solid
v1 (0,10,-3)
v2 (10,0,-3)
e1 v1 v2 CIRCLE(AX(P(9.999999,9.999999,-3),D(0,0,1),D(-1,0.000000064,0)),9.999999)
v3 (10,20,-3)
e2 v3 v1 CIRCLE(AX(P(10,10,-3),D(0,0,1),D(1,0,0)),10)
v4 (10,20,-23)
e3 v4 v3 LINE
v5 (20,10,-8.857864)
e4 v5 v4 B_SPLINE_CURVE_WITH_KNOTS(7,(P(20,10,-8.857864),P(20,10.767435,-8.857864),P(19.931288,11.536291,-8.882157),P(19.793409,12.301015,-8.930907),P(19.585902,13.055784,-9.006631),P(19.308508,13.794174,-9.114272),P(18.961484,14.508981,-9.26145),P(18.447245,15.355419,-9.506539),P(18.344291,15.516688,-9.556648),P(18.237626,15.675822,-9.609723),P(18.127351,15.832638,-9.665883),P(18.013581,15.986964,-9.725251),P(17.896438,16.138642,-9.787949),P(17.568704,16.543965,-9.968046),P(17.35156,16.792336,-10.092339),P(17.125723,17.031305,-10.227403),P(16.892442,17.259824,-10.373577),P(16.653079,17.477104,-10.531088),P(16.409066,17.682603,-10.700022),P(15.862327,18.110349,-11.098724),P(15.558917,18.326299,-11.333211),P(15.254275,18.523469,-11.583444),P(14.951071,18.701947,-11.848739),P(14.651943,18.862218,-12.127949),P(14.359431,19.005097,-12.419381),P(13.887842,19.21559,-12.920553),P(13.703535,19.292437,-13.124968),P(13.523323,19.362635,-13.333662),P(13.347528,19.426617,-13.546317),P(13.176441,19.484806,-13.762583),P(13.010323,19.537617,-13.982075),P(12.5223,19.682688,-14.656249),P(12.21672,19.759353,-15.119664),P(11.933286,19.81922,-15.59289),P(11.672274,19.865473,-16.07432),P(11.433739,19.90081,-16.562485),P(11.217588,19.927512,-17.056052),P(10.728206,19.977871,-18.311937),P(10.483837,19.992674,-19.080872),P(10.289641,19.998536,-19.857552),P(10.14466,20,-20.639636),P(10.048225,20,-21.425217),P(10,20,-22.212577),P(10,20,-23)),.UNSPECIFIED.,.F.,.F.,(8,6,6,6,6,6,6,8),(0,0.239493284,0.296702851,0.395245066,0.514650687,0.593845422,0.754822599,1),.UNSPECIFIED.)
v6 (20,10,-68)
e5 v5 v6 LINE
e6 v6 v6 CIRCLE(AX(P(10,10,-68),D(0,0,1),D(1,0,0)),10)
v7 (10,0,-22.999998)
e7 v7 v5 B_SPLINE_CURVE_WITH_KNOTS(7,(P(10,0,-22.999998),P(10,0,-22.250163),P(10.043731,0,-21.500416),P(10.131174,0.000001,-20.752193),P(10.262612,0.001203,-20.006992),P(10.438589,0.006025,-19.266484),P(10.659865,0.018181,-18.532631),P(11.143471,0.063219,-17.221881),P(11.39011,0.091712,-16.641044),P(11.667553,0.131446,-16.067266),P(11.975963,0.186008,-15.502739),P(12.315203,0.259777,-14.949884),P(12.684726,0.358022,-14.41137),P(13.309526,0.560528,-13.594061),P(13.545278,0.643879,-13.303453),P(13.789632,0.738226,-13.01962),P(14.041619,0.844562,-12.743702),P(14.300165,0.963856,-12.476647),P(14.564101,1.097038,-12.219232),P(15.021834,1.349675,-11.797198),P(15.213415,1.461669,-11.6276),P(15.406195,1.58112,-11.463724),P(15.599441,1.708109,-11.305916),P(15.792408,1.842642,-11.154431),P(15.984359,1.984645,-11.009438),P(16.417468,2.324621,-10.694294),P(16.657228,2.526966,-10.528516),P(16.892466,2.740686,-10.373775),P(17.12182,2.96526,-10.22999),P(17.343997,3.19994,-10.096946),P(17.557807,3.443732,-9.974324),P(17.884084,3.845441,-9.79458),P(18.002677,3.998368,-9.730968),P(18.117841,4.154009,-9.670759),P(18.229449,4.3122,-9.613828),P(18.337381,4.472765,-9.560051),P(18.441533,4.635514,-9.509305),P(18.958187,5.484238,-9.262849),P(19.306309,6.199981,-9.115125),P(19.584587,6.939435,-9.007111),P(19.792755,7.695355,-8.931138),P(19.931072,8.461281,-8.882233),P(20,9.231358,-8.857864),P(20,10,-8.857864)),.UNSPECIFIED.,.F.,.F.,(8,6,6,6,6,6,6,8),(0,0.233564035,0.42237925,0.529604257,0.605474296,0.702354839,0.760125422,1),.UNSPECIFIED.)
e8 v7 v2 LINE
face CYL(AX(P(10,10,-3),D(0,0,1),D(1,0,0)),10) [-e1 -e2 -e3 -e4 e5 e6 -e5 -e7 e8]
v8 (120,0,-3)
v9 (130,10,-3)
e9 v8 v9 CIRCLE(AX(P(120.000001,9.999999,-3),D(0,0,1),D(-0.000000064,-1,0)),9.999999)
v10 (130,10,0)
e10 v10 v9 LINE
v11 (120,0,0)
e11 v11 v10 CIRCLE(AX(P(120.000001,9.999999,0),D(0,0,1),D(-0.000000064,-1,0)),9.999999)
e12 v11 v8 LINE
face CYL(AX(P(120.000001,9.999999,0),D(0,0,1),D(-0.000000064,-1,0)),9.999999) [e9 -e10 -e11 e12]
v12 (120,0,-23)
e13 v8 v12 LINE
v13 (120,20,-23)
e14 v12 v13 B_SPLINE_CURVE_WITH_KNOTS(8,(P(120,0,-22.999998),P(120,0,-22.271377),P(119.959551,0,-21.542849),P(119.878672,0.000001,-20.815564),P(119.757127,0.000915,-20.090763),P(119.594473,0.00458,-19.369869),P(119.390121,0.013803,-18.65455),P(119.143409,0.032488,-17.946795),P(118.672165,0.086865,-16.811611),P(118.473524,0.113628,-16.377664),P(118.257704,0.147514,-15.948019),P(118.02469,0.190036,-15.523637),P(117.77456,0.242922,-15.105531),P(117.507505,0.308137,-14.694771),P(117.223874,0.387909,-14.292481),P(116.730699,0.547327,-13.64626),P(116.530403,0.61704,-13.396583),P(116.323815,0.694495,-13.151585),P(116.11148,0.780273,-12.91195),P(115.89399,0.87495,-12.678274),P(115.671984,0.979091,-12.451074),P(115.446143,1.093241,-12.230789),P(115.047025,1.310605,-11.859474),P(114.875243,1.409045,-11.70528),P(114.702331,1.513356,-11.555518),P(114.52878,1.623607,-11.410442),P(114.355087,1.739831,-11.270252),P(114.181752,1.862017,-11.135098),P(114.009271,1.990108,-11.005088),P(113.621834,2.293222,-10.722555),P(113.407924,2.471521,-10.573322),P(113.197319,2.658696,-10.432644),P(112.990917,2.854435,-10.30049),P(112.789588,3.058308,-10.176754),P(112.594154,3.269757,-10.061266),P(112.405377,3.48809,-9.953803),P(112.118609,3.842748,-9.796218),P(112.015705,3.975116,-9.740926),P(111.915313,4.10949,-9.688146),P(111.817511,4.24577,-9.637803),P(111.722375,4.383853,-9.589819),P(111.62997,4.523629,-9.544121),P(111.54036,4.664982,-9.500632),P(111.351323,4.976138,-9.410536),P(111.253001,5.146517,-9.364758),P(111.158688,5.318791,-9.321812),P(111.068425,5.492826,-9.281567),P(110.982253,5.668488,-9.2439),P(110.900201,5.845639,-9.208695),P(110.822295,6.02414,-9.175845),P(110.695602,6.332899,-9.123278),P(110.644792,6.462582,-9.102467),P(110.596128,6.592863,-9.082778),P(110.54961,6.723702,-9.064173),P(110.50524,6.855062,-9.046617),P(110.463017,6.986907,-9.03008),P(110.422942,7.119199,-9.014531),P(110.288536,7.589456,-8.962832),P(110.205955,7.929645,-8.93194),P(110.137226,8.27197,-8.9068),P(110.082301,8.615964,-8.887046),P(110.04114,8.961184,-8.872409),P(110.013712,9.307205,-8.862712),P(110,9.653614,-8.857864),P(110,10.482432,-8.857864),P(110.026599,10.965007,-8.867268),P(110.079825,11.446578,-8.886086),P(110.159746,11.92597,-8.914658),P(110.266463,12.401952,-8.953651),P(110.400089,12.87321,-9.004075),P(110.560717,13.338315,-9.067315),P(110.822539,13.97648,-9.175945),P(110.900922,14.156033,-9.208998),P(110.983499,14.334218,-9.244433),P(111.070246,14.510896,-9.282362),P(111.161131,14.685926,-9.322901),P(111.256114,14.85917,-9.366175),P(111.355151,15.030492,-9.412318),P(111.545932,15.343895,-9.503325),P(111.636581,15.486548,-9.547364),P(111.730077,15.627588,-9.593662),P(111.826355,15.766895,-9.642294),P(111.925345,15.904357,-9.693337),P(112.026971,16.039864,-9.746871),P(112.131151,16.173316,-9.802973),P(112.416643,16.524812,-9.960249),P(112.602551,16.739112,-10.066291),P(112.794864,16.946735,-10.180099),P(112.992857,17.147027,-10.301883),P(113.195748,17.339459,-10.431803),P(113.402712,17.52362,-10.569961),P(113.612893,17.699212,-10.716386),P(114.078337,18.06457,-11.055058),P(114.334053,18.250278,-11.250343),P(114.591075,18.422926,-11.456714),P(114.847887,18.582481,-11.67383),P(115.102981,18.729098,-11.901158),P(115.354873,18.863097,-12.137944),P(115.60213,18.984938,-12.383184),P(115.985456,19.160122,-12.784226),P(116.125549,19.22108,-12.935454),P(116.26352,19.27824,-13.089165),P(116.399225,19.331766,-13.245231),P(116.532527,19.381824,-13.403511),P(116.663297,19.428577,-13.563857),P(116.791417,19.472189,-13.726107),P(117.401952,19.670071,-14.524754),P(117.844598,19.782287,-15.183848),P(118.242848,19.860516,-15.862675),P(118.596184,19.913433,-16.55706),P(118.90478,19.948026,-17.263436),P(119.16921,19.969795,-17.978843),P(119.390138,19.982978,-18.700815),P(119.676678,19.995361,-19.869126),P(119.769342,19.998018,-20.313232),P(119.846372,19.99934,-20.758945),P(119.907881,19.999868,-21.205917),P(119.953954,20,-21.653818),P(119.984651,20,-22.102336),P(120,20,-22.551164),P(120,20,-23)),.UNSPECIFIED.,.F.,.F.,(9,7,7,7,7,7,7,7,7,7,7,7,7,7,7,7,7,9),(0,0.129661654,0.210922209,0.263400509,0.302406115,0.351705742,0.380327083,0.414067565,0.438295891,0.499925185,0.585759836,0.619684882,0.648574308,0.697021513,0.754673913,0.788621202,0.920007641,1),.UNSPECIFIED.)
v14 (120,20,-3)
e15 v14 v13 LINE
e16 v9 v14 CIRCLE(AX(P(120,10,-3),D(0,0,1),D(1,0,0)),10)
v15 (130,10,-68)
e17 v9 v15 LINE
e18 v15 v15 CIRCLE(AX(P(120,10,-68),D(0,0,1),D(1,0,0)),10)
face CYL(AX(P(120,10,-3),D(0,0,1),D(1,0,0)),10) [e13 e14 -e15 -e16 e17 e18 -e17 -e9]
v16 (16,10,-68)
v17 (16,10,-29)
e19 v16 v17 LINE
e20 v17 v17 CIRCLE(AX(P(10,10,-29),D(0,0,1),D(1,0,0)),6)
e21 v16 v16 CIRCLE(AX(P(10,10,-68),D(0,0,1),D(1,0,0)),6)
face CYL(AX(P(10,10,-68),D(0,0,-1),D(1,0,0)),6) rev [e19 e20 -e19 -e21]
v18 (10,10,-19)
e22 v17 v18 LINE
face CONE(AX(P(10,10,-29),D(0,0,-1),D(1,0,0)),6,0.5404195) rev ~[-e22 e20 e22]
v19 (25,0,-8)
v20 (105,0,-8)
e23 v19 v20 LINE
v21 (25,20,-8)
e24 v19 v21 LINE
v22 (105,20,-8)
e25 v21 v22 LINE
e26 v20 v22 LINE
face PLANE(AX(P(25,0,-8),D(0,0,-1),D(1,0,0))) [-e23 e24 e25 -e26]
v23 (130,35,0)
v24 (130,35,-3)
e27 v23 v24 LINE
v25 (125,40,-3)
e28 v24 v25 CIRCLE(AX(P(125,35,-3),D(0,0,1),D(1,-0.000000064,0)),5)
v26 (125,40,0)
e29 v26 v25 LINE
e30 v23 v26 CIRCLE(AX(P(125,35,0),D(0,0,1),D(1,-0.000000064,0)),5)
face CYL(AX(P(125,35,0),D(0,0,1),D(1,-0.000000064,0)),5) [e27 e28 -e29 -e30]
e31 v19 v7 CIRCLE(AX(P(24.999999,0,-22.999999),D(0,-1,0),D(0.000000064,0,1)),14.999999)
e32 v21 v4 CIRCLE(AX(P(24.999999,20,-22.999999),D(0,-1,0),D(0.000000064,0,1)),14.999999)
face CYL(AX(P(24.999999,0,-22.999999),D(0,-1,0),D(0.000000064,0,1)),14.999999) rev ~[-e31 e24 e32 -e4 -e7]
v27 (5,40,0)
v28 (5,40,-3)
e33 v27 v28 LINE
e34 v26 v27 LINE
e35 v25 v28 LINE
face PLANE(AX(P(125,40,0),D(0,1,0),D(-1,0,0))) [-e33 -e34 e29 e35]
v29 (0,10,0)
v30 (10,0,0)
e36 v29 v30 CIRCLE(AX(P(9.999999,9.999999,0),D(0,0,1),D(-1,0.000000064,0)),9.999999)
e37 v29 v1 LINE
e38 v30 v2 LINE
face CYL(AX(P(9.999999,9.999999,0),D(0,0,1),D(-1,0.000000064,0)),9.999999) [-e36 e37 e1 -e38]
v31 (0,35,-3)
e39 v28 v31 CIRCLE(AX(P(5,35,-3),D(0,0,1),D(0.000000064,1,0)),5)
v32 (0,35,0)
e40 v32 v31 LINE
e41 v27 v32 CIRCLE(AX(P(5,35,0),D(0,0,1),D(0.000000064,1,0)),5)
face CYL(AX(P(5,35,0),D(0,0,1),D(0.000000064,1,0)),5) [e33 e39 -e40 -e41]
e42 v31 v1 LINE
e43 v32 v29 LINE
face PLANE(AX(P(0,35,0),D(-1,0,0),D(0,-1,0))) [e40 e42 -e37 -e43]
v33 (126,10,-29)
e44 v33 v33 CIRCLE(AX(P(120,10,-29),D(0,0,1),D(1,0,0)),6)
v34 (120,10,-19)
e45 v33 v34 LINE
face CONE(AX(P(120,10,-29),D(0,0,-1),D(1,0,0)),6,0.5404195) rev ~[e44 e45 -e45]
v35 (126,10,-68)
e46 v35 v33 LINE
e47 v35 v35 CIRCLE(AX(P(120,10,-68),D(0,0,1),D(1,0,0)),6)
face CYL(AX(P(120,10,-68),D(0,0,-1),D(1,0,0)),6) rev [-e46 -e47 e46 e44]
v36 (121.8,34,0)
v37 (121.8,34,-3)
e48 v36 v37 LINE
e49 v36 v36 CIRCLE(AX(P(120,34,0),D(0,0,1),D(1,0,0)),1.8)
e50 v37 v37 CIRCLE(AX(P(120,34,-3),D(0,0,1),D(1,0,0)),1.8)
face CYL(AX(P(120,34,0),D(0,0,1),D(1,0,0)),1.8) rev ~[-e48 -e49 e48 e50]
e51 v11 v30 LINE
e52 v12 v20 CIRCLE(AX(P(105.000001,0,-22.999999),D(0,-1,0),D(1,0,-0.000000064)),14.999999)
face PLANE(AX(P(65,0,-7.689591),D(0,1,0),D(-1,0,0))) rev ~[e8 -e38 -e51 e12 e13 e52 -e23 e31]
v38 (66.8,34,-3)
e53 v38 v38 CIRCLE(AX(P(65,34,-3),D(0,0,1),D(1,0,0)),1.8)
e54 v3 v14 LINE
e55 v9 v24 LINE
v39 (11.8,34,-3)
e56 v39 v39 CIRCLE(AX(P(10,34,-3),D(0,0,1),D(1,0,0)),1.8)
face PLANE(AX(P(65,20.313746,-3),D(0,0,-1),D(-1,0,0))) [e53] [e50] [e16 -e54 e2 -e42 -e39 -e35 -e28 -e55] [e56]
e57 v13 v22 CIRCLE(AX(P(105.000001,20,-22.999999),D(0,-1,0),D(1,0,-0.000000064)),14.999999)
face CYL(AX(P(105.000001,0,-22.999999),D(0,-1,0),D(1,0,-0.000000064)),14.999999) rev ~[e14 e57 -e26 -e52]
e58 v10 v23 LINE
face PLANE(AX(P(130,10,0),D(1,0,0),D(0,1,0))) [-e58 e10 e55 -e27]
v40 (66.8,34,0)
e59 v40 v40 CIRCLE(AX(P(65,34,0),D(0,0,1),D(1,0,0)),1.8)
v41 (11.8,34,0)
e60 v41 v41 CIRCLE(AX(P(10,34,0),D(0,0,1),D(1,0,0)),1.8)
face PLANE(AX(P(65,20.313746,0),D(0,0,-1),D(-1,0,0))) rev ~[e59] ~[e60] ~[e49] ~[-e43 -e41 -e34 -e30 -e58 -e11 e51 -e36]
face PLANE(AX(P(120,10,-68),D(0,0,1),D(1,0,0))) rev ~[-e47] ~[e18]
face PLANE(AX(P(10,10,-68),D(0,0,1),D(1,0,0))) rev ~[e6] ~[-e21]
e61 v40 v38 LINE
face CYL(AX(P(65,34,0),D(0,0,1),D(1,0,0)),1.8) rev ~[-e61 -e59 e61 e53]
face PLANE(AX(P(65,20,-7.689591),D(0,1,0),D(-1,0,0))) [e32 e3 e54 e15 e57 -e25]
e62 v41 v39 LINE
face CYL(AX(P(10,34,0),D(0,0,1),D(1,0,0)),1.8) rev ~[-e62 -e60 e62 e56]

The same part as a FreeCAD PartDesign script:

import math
import FreeCAD as App
import Part
import Sketcher

V = App.Vector

doc = App.newDocument("Part")
body = doc.addObject("PartDesign::Body", "Body")

sketch1 = doc.addObject("Sketcher::SketchObject", "Sketch")
body.addObject(sketch1)
sketch1.AttachmentSupport = (doc.XY_Plane, [""])
sketch1.MapMode = "FlatFace"
sketch1.addGeometry([
    Part.LineSegment(V(10, 0, 0), V(120, 0, 0)),
    Part.ArcOfCircle(Part.Circle(V(120, 10, 0), V(0, 0, 1), 10), math.radians(-90), math.radians(0)),
    Part.LineSegment(V(130, 10, 0), V(130, 35, 0)),
    Part.ArcOfCircle(Part.Circle(V(125, 35, 0), V(0, 0, 1), 5), math.radians(0), math.radians(90)),
    Part.LineSegment(V(125, 40, 0), V(5, 40, 0)),
    Part.ArcOfCircle(Part.Circle(V(5, 35, 0), V(0, 0, 1), 5), math.radians(90), math.radians(180)),
    Part.LineSegment(V(0, 35, 0), V(0, 10, 0)),
    Part.ArcOfCircle(Part.Circle(V(10, 10, 0), V(0, 0, 1), 10), math.radians(180), math.radians(270)),
    Part.Circle(V(120, 34, 0), V(0, 0, 1), 1.8),
    Part.Circle(V(65, 34, 0), V(0, 0, 1), 1.8),
    Part.Circle(V(10, 34, 0), V(0, 0, 1), 1.8),
], False)
sketch1.addConstraint([
    Sketcher.Constraint("Tangent", 0, 2, 1, 1),
    Sketcher.Constraint("Tangent", 1, 2, 2, 1),
    Sketcher.Constraint("Tangent", 2, 2, 3, 1),
    Sketcher.Constraint("Tangent", 3, 2, 4, 1),
    Sketcher.Constraint("Tangent", 4, 2, 5, 1),
    Sketcher.Constraint("Tangent", 5, 2, 6, 1),
    Sketcher.Constraint("Tangent", 6, 2, 7, 1),
    Sketcher.Constraint("Tangent", 7, 2, 0, 1),
    Sketcher.Constraint("Horizontal", 0),
    Sketcher.Constraint("Vertical", 2),
    Sketcher.Constraint("Horizontal", 4),
    Sketcher.Constraint("Vertical", 6),
    Sketcher.Constraint("Equal", 3, 5),
    Sketcher.Constraint("Equal", 1, 7),
    Sketcher.Constraint("Equal", 8, 9),
    Sketcher.Constraint("Equal", 9, 10),
    Sketcher.Constraint("PointOnObject", 0, 2, -1),
    Sketcher.Constraint("PointOnObject", 5, 2, -2),
    Sketcher.Constraint("Horizontal", 8, 3, 9, 3),
    Sketcher.Constraint("Horizontal", 9, 3, 10, 3),
    Sketcher.Constraint("Vertical", 1, 3, 8, 3),
    Sketcher.Constraint("Vertical", 7, 3, 10, 3),
    Sketcher.Constraint("Radius", 1, 9.999999),
    Sketcher.Constraint("Radius", 3, 5.0),
    Sketcher.Constraint("Diameter", 8, 3.6),
    Sketcher.Constraint("DistanceX", 0, 1, 0, 2, 110.0),
    Sketcher.Constraint("DistanceY", 2, 1, 2, 2, 25.0),
    Sketcher.Constraint("DistanceY", -1, 1, 8, 3, 34.0),
    Sketcher.Constraint("DistanceX", -1, 1, 9, 3, 65.0),
])
pad1 = doc.addObject("PartDesign::Pad", "Pad")
body.addObject(pad1)
pad1.Profile = sketch1
pad1.Length = 3
pad1.Reversed = True

sketch2 = doc.addObject("Sketcher::SketchObject", "Sketch001")
body.addObject(sketch2)
sketch2.AttachmentSupport = (doc.XY_Plane, [""])
sketch2.MapMode = "FlatFace"
sketch2.AttachmentOffset = App.Placement(V(0, 0, -3), App.Rotation())
sketch2.addGeometry([
    Part.Circle(V(10, 10, 0), V(0, 0, 1), 10),
    Part.Circle(V(120, 10, 0), V(0, 0, 1), 10),
], False)
sketch2.addConstraint([
    Sketcher.Constraint("Equal", 0, 1),
    Sketcher.Constraint("Horizontal", 0, 3, 1, 3),
    Sketcher.Constraint("Diameter", 0, 20.0),
    Sketcher.Constraint("DistanceX", -1, 1, 0, 3, 10.0),
    Sketcher.Constraint("DistanceY", -1, 1, 0, 3, 10.0),
    Sketcher.Constraint("DistanceX", -1, 1, 1, 3, 120.0),
])
pad2 = doc.addObject("PartDesign::Pad", "Pad001")
body.addObject(pad2)
pad2.Profile = sketch2
pad2.Length = 65
pad2.Reversed = True

sketch3 = doc.addObject("Sketcher::SketchObject", "Sketch002")
body.addObject(sketch3)
sketch3.AttachmentSupport = (doc.XZ_Plane, [""])
sketch3.MapMode = "FlatFace"
sketch3.addGeometry([
    Part.LineSegment(V(120, -3, 0), V(10, -3, 0)),
    Part.LineSegment(V(10, -3, 0), V(10, -23, 0)),
    Part.ArcOfCircle(Part.Circle(V(25, -23, 0), V(0, 0, 1), 15), math.radians(90), math.radians(180)),
    Part.LineSegment(V(25, -8, 0), V(105, -8, 0)),
    Part.ArcOfCircle(Part.Circle(V(105, -23, 0), V(0, 0, 1), 15), math.radians(0), math.radians(90)),
    Part.LineSegment(V(120, -23, 0), V(120, -3, 0)),
], False)
sketch3.addConstraint([
    Sketcher.Constraint("Coincident", 0, 2, 1, 1),
    Sketcher.Constraint("Tangent", 1, 2, 2, 2),
    Sketcher.Constraint("Tangent", 2, 1, 3, 1),
    Sketcher.Constraint("Tangent", 3, 2, 4, 2),
    Sketcher.Constraint("Tangent", 4, 1, 5, 1),
    Sketcher.Constraint("Coincident", 5, 2, 0, 1),
    Sketcher.Constraint("Horizontal", 0),
    Sketcher.Constraint("Vertical", 1),
    Sketcher.Constraint("Horizontal", 3),
    Sketcher.Constraint("Vertical", 5),
    Sketcher.Constraint("Equal", 2, 4),
    Sketcher.Constraint("Radius", 2, 14.999999),
    Sketcher.Constraint("DistanceX", 0, 2, 0, 1, 110.0),
    Sketcher.Constraint("DistanceY", 1, 2, 1, 1, 20.0),
    Sketcher.Constraint("DistanceX", -1, 1, 2, 3, 24.999999),
    Sketcher.Constraint("DistanceY", 2, 3, -1, 1, 22.999999),
])
pad3 = doc.addObject("PartDesign::Pad", "Pad002")
body.addObject(pad3)
pad3.Profile = sketch3
pad3.Length = 20
pad3.Reversed = True

sketch4 = doc.addObject("Sketcher::SketchObject", "Sketch003")
body.addObject(sketch4)
sketch4.AttachmentSupport = (doc.XY_Plane, [""])
sketch4.MapMode = "FlatFace"
sketch4.AttachmentOffset = App.Placement(V(0, 0, -68), App.Rotation())
sketch4.addGeometry([
    Part.Circle(V(10, 10, 0), V(0, 0, 1), 6),
    Part.Circle(V(120, 10, 0), V(0, 0, 1), 6),
], False)
sketch4.addConstraint([
    Sketcher.Constraint("Equal", 0, 1),
    Sketcher.Constraint("Horizontal", 0, 3, 1, 3),
    Sketcher.Constraint("Diameter", 0, 12.0),
    Sketcher.Constraint("DistanceX", -1, 1, 0, 3, 10.0),
    Sketcher.Constraint("DistanceY", -1, 1, 0, 3, 10.0),
    Sketcher.Constraint("DistanceX", -1, 1, 1, 3, 120.0),
])
pocket1 = doc.addObject("PartDesign::Pocket", "Pocket")
body.addObject(pocket1)
pocket1.Profile = sketch4
pocket1.Length = 39
pocket1.Reversed = True

sketch5 = doc.addObject("Sketcher::SketchObject", "Sketch004")
body.addObject(sketch5)
sketch5.AttachmentSupport = (doc.XZ_Plane, [""])
sketch5.MapMode = "FlatFace"
sketch5.AttachmentOffset = App.Placement(V(0, 0, -10), App.Rotation())
sketch5.addGeometry([
    Part.LineSegment(V(10, -29, 0), V(16, -29, 0)),
    Part.LineSegment(V(16, -29, 0), V(10, -19, 0)),
    Part.LineSegment(V(10, -19, 0), V(10, -29, 0)),
], False)
sketch5.addGeometry(Part.LineSegment(V(10, -29, 0), V(10, -19, 0)), True)
sketch5.addConstraint([
    Sketcher.Constraint("Coincident", 0, 2, 1, 1),
    Sketcher.Constraint("Coincident", 1, 2, 2, 1),
    Sketcher.Constraint("Coincident", 2, 2, 0, 1),
    Sketcher.Constraint("Horizontal", 0),
    Sketcher.Constraint("Vertical", 2),
    Sketcher.Constraint("Vertical", 3),
    Sketcher.Constraint("Coincident", 3, 1, 2, 2),
    Sketcher.Constraint("Equal", 2, 3),
    Sketcher.Constraint("DistanceX", 0, 1, 0, 2, 6.0),
    Sketcher.Constraint("DistanceY", 2, 2, 2, 1, 10.0),
    Sketcher.Constraint("DistanceX", -1, 1, 0, 2, 16.0),
    Sketcher.Constraint("DistanceY", 0, 2, -1, 1, 29.0),
])
groove = doc.addObject("PartDesign::Groove", "Groove")
body.addObject(groove)
groove.Profile = sketch5
groove.ReferenceAxis = (sketch5, ["Axis0"])
groove.Angle = 360

sketch6 = doc.addObject("Sketcher::SketchObject", "Sketch005")
body.addObject(sketch6)
sketch6.AttachmentSupport = (doc.XZ_Plane, [""])
sketch6.MapMode = "FlatFace"
sketch6.AttachmentOffset = App.Placement(V(0, 0, -10), App.Rotation())
sketch6.addGeometry([
    Part.LineSegment(V(120, -29, 0), V(126, -29, 0)),
    Part.LineSegment(V(126, -29, 0), V(120, -19, 0)),
    Part.LineSegment(V(120, -19, 0), V(120, -29, 0)),
], False)
sketch6.addGeometry(Part.LineSegment(V(120, -29, 0), V(120, -19, 0)), True)
sketch6.addConstraint([
    Sketcher.Constraint("Coincident", 0, 2, 1, 1),
    Sketcher.Constraint("Coincident", 1, 2, 2, 1),
    Sketcher.Constraint("Coincident", 2, 2, 0, 1),
    Sketcher.Constraint("Horizontal", 0),
    Sketcher.Constraint("Vertical", 2),
    Sketcher.Constraint("Vertical", 3),
    Sketcher.Constraint("Coincident", 3, 1, 2, 2),
    Sketcher.Constraint("Equal", 2, 3),
    Sketcher.Constraint("DistanceX", 0, 1, 0, 2, 6.0),
    Sketcher.Constraint("DistanceY", 2, 2, 2, 1, 10.0),
    Sketcher.Constraint("DistanceX", -1, 1, 0, 2, 126.0),
    Sketcher.Constraint("DistanceY", 0, 2, -1, 1, 29.0),
])
groove2 = doc.addObject("PartDesign::Groove", "Groove001")
body.addObject(groove2)
groove2.Profile = sketch6
groove2.ReferenceAxis = (sketch6, ["Axis0"])
groove2.Angle = 360

doc.recompute()
